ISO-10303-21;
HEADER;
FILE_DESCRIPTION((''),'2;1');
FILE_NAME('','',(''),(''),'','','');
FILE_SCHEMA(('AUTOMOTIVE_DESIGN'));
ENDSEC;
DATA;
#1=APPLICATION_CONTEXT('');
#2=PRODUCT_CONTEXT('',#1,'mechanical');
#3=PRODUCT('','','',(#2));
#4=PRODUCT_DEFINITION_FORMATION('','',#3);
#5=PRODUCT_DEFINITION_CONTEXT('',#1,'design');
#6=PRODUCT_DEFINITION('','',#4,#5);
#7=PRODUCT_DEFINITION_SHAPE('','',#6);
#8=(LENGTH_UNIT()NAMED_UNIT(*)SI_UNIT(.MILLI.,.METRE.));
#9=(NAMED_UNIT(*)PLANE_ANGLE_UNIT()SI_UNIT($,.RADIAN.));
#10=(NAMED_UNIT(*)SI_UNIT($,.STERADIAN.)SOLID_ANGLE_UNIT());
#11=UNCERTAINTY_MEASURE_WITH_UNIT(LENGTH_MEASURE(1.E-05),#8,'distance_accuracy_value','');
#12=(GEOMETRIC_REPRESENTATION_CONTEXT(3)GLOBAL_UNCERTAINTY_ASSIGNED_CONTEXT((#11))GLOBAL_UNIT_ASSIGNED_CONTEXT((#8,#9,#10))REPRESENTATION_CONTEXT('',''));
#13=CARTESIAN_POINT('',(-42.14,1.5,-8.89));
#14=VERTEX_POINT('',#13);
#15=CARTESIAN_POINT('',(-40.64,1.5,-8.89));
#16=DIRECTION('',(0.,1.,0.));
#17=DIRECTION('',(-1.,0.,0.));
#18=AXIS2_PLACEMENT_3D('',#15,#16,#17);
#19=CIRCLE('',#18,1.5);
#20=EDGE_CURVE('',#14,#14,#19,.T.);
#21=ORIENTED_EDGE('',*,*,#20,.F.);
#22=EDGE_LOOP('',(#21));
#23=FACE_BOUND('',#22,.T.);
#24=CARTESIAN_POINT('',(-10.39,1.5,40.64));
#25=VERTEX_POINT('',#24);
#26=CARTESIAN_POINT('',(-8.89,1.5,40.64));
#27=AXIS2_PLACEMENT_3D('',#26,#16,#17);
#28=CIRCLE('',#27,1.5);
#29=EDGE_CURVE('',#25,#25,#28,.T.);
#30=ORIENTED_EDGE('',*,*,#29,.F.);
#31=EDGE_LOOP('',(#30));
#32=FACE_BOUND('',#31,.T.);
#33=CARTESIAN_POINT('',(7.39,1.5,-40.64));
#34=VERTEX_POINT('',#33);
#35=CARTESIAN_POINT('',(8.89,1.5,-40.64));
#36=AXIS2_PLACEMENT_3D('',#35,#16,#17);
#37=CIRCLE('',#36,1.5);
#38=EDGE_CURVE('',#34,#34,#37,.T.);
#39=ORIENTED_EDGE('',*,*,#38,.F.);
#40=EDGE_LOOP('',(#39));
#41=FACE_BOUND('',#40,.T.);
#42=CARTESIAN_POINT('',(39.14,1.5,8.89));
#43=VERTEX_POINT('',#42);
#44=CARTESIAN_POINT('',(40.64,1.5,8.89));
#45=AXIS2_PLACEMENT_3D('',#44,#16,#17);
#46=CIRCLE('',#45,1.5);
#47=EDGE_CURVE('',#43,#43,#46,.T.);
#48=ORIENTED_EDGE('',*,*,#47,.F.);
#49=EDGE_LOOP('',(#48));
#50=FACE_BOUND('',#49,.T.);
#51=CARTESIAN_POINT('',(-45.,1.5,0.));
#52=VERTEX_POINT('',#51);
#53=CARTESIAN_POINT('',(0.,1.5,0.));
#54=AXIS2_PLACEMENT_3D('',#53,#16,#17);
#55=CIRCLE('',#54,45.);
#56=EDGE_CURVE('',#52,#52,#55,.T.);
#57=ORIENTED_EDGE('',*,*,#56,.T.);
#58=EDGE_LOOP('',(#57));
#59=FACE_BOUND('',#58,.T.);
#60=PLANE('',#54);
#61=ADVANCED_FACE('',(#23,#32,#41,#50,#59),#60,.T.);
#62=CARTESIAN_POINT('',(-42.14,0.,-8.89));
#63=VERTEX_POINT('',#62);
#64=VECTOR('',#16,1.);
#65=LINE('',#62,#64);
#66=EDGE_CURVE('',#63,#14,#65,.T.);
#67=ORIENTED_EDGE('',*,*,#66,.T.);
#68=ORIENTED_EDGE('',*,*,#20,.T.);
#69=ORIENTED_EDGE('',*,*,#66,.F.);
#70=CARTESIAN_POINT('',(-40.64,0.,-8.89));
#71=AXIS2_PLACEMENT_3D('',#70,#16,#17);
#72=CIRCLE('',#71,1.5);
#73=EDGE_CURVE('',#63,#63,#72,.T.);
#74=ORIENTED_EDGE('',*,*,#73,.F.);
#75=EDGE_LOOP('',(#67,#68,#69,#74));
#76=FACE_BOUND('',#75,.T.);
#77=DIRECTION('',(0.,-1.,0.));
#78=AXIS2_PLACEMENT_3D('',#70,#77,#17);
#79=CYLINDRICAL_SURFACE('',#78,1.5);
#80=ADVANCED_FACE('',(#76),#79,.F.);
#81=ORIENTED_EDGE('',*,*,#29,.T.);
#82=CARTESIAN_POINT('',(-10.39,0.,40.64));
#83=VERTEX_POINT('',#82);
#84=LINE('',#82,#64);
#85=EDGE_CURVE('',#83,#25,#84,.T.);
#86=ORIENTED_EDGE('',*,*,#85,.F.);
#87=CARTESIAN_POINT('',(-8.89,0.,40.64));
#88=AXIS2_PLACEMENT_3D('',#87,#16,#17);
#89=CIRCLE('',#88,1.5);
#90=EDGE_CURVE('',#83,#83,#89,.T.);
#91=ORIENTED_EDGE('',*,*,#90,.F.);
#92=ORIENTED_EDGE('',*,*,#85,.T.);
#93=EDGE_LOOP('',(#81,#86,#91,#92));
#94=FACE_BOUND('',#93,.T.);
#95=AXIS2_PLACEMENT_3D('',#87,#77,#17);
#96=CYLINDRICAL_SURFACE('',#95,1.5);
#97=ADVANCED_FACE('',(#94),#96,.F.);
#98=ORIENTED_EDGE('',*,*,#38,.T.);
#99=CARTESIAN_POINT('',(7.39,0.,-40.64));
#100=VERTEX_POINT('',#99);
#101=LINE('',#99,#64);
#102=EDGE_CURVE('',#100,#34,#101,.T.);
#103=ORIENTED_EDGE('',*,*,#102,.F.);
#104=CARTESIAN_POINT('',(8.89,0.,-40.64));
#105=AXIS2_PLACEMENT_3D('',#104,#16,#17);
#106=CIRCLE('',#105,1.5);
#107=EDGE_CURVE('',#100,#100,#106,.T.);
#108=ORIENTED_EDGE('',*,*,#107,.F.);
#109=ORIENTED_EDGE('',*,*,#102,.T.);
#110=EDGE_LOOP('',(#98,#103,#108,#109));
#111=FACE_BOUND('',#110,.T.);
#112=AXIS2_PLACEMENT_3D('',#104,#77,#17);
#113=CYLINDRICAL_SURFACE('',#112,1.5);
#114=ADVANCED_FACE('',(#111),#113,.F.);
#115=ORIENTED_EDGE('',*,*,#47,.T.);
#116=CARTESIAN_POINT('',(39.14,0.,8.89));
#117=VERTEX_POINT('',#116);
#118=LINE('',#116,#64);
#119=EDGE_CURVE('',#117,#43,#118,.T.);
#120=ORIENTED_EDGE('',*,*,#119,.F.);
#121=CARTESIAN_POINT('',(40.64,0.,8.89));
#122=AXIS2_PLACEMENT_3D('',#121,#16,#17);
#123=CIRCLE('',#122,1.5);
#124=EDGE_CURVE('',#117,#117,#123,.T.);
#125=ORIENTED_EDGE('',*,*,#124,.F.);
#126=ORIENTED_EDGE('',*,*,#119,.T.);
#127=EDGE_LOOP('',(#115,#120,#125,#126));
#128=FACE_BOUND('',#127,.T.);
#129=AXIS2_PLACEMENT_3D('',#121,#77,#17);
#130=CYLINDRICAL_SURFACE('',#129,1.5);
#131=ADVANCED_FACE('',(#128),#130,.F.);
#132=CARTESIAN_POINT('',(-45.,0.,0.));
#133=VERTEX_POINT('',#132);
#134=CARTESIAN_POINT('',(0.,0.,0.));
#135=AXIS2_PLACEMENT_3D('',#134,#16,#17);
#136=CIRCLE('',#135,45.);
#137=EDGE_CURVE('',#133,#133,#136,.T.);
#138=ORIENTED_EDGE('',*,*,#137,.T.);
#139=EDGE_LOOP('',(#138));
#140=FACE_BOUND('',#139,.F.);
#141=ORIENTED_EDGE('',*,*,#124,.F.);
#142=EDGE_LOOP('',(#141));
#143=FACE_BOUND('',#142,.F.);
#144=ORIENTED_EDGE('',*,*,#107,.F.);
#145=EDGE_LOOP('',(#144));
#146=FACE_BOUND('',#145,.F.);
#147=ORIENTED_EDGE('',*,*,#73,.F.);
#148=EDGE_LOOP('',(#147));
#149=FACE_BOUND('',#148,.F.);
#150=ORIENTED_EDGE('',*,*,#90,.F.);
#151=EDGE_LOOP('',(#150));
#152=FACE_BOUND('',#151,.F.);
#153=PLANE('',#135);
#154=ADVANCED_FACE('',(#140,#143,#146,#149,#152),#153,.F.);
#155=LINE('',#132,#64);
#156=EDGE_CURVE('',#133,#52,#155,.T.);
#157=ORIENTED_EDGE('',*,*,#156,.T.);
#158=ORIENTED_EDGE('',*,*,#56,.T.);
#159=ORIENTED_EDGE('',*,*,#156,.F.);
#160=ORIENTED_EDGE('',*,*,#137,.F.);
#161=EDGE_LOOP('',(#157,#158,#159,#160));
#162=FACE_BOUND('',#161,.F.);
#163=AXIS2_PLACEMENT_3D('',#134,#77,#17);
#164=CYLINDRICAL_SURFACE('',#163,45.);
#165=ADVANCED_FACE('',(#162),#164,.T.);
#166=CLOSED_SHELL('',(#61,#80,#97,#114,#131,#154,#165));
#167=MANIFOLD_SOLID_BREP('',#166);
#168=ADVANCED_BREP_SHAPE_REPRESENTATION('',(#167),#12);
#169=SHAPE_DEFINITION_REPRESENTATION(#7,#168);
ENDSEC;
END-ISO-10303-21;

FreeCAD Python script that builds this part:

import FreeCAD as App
import Part
import Sketcher

V = App.Vector

doc = App.newDocument("Part")
body = doc.addObject("PartDesign::Body", "Body")

# Sketch on XZ plane
sketch1 = doc.addObject("Sketcher::SketchObject", "Sketch")
body.addObject(sketch1)
sketch1.AttachmentSupport = (doc.XZ_Plane, [""])
sketch1.MapMode = "FlatFace"
sketch1.addGeometry(Part.Circle(V(0, 0, 0), V(0, 0, 1), 45), False)
sketch1.addGeometry(Part.Circle(V(8.9, -40.6, 0), V(0, 0, 1), 1.5), False)
sketch1.addGeometry(Part.Circle(V(-40.6, -8.9, 0), V(0, 0, 1), 1.5), False)
sketch1.addGeometry(Part.Circle(V(40.6, 8.9, 0), V(0, 0, 1), 1.5), False)
sketch1.addGeometry(Part.Circle(V(-8.9, 40.6, 0), V(0, 0, 1), 1.5), False)
sketch1.addConstraint(Sketcher.Constraint("Coincident", 0, 3, -1, 1))
sketch1.addConstraint(Sketcher.Constraint("Equal", 1, 2))
sketch1.addConstraint(Sketcher.Constraint("Equal", 2, 3))
sketch1.addConstraint(Sketcher.Constraint("Equal", 3, 4))
sketch1.addConstraint(Sketcher.Constraint("Symmetric", 2, 3, 3, 3, -1, 1))
sketch1.addConstraint(Sketcher.Constraint("Symmetric", 1, 3, 4, 3, -1, 1))
sketch1.addConstraint(Sketcher.Constraint("Diameter", 0, 90.0))
sketch1.addConstraint(Sketcher.Constraint("Diameter", 1, 3.0))
sketch1.addConstraint(Sketcher.Constraint("DistanceX", -1, 1, 1, 3, 8.89))
sketch1.addConstraint(Sketcher.Constraint("DistanceY", 1, 3, -1, 1, 40.64))
sketch1.addConstraint(Sketcher.Constraint("DistanceX", 2, 3, -1, 1, 40.64))
sketch1.addConstraint(Sketcher.Constraint("DistanceY", 2, 3, -1, 1, 8.89))
pad1 = doc.addObject("PartDesign::Pad", "Pad")
body.addObject(pad1)
pad1.Profile = sketch1
pad1.Length = 1.5
pad1.Reversed = True

doc.recompute()
